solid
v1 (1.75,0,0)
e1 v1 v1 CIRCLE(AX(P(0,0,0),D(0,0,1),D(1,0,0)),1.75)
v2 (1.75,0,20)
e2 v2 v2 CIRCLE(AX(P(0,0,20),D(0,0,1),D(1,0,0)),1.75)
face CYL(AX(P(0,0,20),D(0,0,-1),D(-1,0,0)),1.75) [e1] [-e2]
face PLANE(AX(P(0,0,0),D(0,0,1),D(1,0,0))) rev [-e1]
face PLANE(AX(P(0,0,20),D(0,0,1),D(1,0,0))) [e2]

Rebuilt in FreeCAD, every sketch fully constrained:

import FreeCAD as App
import Part
import Sketcher

doc = App.newDocument("Part")
body = doc.addObject("PartDesign::Body", "Body")

# Sketch on XY plane
sketch1 = doc.addObject("Sketcher::SketchObject", "Sketch")
body.addObject(sketch1)
sketch1.AttachmentSupport = (doc.XY_Plane, [""])
sketch1.MapMode = "FlatFace"
sketch1.addGeometry(Part.Circle(App.Vector(0, 0, 0), App.Vector(0, 0, 1), 1.8), False)
sketch1.addConstraint([
    Sketcher.Constraint("Coincident", 0, 3, -1, 1),
    Sketcher.Constraint("Diameter", 0, 3.5),
])
pad1 = doc.addObject("PartDesign::Pad", "Pad")
body.addObject(pad1)
pad1.Profile = sketch1
pad1.Length = 20

doc.recompute()
